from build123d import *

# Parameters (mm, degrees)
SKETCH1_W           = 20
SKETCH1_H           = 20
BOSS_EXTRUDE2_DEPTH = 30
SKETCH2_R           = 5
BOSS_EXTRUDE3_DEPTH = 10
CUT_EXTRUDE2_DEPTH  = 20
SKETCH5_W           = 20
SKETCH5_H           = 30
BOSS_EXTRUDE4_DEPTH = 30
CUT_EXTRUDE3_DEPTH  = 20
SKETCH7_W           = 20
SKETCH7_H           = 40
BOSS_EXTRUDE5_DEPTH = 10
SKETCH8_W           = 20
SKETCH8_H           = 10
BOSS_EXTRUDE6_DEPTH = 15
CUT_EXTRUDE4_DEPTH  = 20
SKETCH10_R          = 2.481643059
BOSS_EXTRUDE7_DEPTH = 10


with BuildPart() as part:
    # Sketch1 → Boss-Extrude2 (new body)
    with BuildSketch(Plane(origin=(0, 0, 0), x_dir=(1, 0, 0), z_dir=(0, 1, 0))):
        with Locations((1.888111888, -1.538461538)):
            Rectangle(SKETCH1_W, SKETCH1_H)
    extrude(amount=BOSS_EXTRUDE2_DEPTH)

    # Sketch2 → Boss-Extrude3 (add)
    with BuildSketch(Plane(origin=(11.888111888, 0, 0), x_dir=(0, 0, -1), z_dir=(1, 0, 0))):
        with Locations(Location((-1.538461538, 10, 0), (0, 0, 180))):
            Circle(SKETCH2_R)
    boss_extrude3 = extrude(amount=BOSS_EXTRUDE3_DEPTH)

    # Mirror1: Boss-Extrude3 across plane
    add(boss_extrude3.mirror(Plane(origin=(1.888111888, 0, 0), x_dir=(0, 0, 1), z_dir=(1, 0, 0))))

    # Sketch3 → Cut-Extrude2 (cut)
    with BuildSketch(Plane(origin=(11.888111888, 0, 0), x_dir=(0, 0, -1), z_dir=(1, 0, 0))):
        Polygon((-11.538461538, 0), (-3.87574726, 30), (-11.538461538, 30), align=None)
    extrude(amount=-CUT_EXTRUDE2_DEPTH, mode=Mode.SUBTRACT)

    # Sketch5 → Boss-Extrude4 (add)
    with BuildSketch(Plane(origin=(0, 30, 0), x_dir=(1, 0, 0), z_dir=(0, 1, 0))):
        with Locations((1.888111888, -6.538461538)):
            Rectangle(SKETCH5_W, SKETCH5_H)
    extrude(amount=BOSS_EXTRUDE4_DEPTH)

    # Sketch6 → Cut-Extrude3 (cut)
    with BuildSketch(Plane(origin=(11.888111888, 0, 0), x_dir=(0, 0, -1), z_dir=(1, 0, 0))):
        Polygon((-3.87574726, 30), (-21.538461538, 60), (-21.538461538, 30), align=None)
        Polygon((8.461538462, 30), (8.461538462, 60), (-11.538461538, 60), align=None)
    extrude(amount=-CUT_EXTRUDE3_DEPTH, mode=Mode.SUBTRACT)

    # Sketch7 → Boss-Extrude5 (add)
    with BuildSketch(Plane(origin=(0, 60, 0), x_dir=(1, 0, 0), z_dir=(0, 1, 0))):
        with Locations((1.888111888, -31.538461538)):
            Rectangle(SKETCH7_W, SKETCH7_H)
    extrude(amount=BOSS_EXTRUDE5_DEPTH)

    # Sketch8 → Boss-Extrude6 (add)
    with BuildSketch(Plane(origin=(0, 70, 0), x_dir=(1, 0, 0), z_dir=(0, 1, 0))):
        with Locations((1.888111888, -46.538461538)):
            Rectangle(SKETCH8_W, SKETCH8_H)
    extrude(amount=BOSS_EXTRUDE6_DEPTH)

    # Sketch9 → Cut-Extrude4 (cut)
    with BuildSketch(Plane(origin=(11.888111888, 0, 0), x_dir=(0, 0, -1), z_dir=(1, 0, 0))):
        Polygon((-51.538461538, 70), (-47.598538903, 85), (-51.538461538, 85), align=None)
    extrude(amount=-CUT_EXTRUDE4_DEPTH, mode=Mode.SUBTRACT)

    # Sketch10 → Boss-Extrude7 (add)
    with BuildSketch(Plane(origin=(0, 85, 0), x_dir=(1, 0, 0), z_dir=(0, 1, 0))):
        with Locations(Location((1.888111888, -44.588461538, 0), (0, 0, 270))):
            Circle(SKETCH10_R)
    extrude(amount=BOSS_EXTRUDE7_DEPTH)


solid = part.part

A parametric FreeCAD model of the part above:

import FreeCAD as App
import Part
import Sketcher


def add_polygon(sketch, points):
    """Adds a closed chain of lines whose ends are joined by coincident constraints."""
    first, n = sketch.GeometryCount, len(points)
    for a, b in zip(points, points[1:] + points[:1]):
        sketch.addGeometry(Part.LineSegment(App.Vector(*a, 0), App.Vector(*b, 0)), False)
    for i in range(n):
        sketch.addConstraint(Sketcher.Constraint("Coincident", first + i, 2, first + (i + 1) % n, 1))

doc = App.newDocument("Part")
body = doc.addObject("PartDesign::Body", "Body")

# Sketch on XZ plane
sketch1 = body.newObject("Sketcher::SketchObject", "Sketch")
sketch1.AttachmentSupport = (doc.getObject("XZ_Plane"), [""])
sketch1.MapMode = "FlatFace"
add_polygon(sketch1, [(-8, -8), (-8, 12), (12, 12), (12, -8)])  # lines 0-3
sketch1.addConstraint(Sketcher.Constraint("Vertical", 0))
sketch1.addConstraint(Sketcher.Constraint("Horizontal", 1))
sketch1.addConstraint(Sketcher.Constraint("Vertical", 2))
sketch1.addConstraint(Sketcher.Constraint("Horizontal", 3))
sketch1.addConstraint(Sketcher.Constraint("Equal", 3, 0))
sketch1.addConstraint(Sketcher.Constraint("DistanceX", 1, 1, 1, 2, 20.0))
sketch1.addConstraint(Sketcher.Constraint("DistanceX", 0, 2, -1, 1, 8.111888))
sketch1.addConstraint(Sketcher.Constraint("DistanceY", -1, 1, 0, 2, 11.538462))
pad1 = body.newObject("PartDesign::Pad", "Pad")
pad1.Profile = sketch1
pad1.Length = 30
pad1.Reversed = True

# Sketch on YZ plane
sketch2 = body.newObject("Sketcher::SketchObject", "Sketch001")
sketch2.AttachmentSupport = (doc.getObject("YZ_Plane"), [""])
sketch2.MapMode = "FlatFace"
sketch2.AttachmentOffset = App.Placement(App.Vector(0, 0, 11.888112), App.Rotation())
sketch2.addGeometry(Part.Circle(App.Vector(10, 2, 0), App.Vector(0, 0, 1), 5), False)
sketch2.addConstraint(Sketcher.Constraint("Diameter", 0, 10.0))
sketch2.addConstraint(Sketcher.Constraint("DistanceX", -1, 1, 0, 3, 10.0))
sketch2.addConstraint(Sketcher.Constraint("DistanceY", -1, 1, 0, 3, 1.538462))
pad2 = body.newObject("PartDesign::Pad", "Pad001")
pad2.Profile = sketch2
pad2.Length = 10
doc.recompute()

datumplane = body.newObject("PartDesign::Plane", "DatumPlane")
datumplane.AttachmentSupport = (doc.getObject("YZ_Plane"), [""])
datumplane.MapMode = "FlatFace"
datumplane.AttachmentOffset = App.Placement(App.Vector(0, 0, 1.888112), App.Rotation())
mirrored = body.newObject("PartDesign::Mirrored", "Mirrored")
mirrored.Originals = [pad2]
mirrored.MirrorPlane = (datumplane, [""])
body.Tip = mirrored

# Sketch on YZ plane
sketch3 = body.newObject("Sketcher::SketchObject", "Sketch002")
sketch3.AttachmentSupport = (doc.getObject("YZ_Plane"), [""])
sketch3.MapMode = "FlatFace"
sketch3.AttachmentOffset = App.Placement(App.Vector(0, 0, 11.888112), App.Rotation())
add_polygon(sketch3, [(0, 12), (30, 4), (30, 12)])  # lines 0-2
sketch3.addConstraint(Sketcher.Constraint("Vertical", 1))
sketch3.addConstraint(Sketcher.Constraint("Horizontal", 2))
sketch3.addConstraint(Sketcher.Constraint("PointOnObject", 2, 2, -2))
sketch3.addConstraint(Sketcher.Constraint("DistanceX", 2, 2, 2, 1, 30.0))
sketch3.addConstraint(Sketcher.Constraint("Distance", 0, 30.963159))
sketch3.addConstraint(Sketcher.Constraint("DistanceY", -1, 1, 1, 2, 11.538462))
pocket1 = body.newObject("PartDesign::Pocket", "Pocket")
pocket1.Profile = sketch3
pocket1.Length = 20

# Sketch on XZ plane
sketch4 = body.newObject("Sketcher::SketchObject", "Sketch003")
sketch4.AttachmentSupport = (doc.getObject("XZ_Plane"), [""])
sketch4.MapMode = "FlatFace"
sketch4.AttachmentOffset = App.Placement(App.Vector(0, 0, -30), App.Rotation())
add_polygon(sketch4, [(-8, -8), (-8, 22), (12, 22), (12, -8)])  # lines 0-3
sketch4.addConstraint(Sketcher.Constraint("Vertical", 0))
sketch4.addConstraint(Sketcher.Constraint("Horizontal", 1))
sketch4.addConstraint(Sketcher.Constraint("Vertical", 2))
sketch4.addConstraint(Sketcher.Constraint("Horizontal", 3))
sketch4.addConstraint(Sketcher.Constraint("DistanceX", 1, 1, 1, 2, 20.0))
sketch4.addConstraint(Sketcher.Constraint("DistanceY", 0, 1, 0, 2, 30.0))
sketch4.addConstraint(Sketcher.Constraint("DistanceX", 0, 2, -1, 1, 8.111888))
sketch4.addConstraint(Sketcher.Constraint("DistanceY", -1, 1, 0, 2, 21.538462))
pad3 = body.newObject("PartDesign::Pad", "Pad002")
pad3.Profile = sketch4
pad3.Length = 30
pad3.Reversed = True

# Sketch on YZ plane
sketch5 = body.newObject("Sketcher::SketchObject", "Sketch004")
sketch5.AttachmentSupport = (doc.getObject("YZ_Plane"), [""])
sketch5.MapMode = "FlatFace"
sketch5.AttachmentOffset = App.Placement(App.Vector(0, 0, 11.888112), App.Rotation())
add_polygon(sketch5, [(30, 4), (60, 22), (30, 22)])  # lines 0-2
add_polygon(sketch5, [(30, -8), (60, -8), (60, 12)])  # lines 3-5
sketch5.addConstraint(Sketcher.Constraint("Horizontal", 1))
sketch5.addConstraint(Sketcher.Constraint("Vertical", 2))
sketch5.addConstraint(Sketcher.Constraint("Horizontal", 3))
sketch5.addConstraint(Sketcher.Constraint("Vertical", 4))
sketch5.addConstraint(Sketcher.Constraint("Vertical", 0, 2, 3, 2))
sketch5.addConstraint(Sketcher.Constraint("Vertical", 2, 2, 5, 2))
sketch5.addConstraint(Sketcher.Constraint("DistanceX", 1, 2, 1, 1, 30.0))
sketch5.addConstraint(Sketcher.Constraint("DistanceY", 4, 1, 4, 2, 20.0))
sketch5.addConstraint(Sketcher.Constraint("DistanceX", -1, 1, 0, 2, 60.0))
sketch5.addConstraint(Sketcher.Constraint("DistanceY", 3, 2, 0, 2, 30.0))
sketch5.addConstraint(Sketcher.Constraint("Distance", 0, 34.813381))
sketch5.addConstraint(Sketcher.Constraint("DistanceY", -1, 1, 0, 2, 21.538462))
pocket2 = body.newObject("PartDesign::Pocket", "Pocket001")
pocket2.Profile = sketch5
pocket2.Length = 20

# Sketch on XZ plane
sketch6 = body.newObject("Sketcher::SketchObject", "Sketch005")
sketch6.AttachmentSupport = (doc.getObject("XZ_Plane"), [""])
sketch6.MapMode = "FlatFace"
sketch6.AttachmentOffset = App.Placement(App.Vector(0, 0, -60), App.Rotation())
add_polygon(sketch6, [(-8, 12), (-8, 52), (12, 52), (12, 12)])  # lines 0-3
sketch6.addConstraint(Sketcher.Constraint("Vertical", 0))
sketch6.addConstraint(Sketcher.Constraint("Horizontal", 1))
sketch6.addConstraint(Sketcher.Constraint("Vertical", 2))
sketch6.addConstraint(Sketcher.Constraint("Horizontal", 3))
sketch6.addConstraint(Sketcher.Constraint("DistanceX", 1, 1, 1, 2, 20.0))
sketch6.addConstraint(Sketcher.Constraint("DistanceY", 0, 1, 0, 2, 40.0))
sketch6.addConstraint(Sketcher.Constraint("DistanceX", 0, 2, -1, 1, 8.111888))
sketch6.addConstraint(Sketcher.Constraint("DistanceY", -1, 1, 0, 2, 51.538462))
pad4 = body.newObject("PartDesign::Pad", "Pad003")
pad4.Profile = sketch6
pad4.Length = 10
pad4.Reversed = True

# Sketch on XZ plane
sketch7 = body.newObject("Sketcher::SketchObject", "Sketch006")
sketch7.AttachmentSupport = (doc.getObject("XZ_Plane"), [""])
sketch7.MapMode = "FlatFace"
sketch7.AttachmentOffset = App.Placement(App.Vector(0, 0, -70), App.Rotation())
add_polygon(sketch7, [(-8, 42), (-8, 52), (12, 52), (12, 42)])  # lines 0-3
sketch7.addConstraint(Sketcher.Constraint("Vertical", 0))
sketch7.addConstraint(Sketcher.Constraint("Horizontal", 1))
sketch7.addConstraint(Sketcher.Constraint("Vertical", 2))
sketch7.addConstraint(Sketcher.Constraint("Horizontal", 3))
sketch7.addConstraint(Sketcher.Constraint("DistanceX", 1, 1, 1, 2, 20.0))
sketch7.addConstraint(Sketcher.Constraint("DistanceY", 0, 1, 0, 2, 10.0))
sketch7.addConstraint(Sketcher.Constraint("DistanceX", 0, 2, -1, 1, 8.111888))
sketch7.addConstraint(Sketcher.Constraint("DistanceY", -1, 1, 0, 2, 51.538462))
pad5 = body.newObject("PartDesign::Pad", "Pad004")
pad5.Profile = sketch7
pad5.Length = 15
pad5.Reversed = True

# Sketch on YZ plane
sketch8 = body.newObject("Sketcher::SketchObject", "Sketch007")
sketch8.AttachmentSupport = (doc.getObject("YZ_Plane"), [""])
sketch8.MapMode = "FlatFace"
sketch8.AttachmentOffset = App.Placement(App.Vector(0, 0, 11.888112), App.Rotation())
add_polygon(sketch8, [(70, 51.5), (85, 47.6), (85, 51.5)])  # lines 0-2
sketch8.addConstraint(Sketcher.Constraint("Vertical", 1))
sketch8.addConstraint(Sketcher.Constraint("Horizontal", 2))
sketch8.addConstraint(Sketcher.Constraint("DistanceX", 2, 2, 2, 1, 15.0))
sketch8.addConstraint(Sketcher.Constraint("DistanceX", -1, 1, 0, 2, 85.0))
sketch8.addConstraint(Sketcher.Constraint("DistanceY", 1, 1, 1, 2, 3.939923))
sketch8.addConstraint(Sketcher.Constraint("DistanceY", -1, 1, 0, 2, 47.598539))
pocket3 = body.newObject("PartDesign::Pocket", "Pocket002")
pocket3.Profile = sketch8
pocket3.Length = 20

# Sketch on XZ plane
sketch9 = body.newObject("Sketcher::SketchObject", "Sketch008")
sketch9.AttachmentSupport = (doc.getObject("XZ_Plane"), [""])
sketch9.MapMode = "FlatFace"
sketch9.AttachmentOffset = App.Placement(App.Vector(0, 0, -85), App.Rotation())
sketch9.addGeometry(Part.Circle(App.Vector(1.9, 44.6, 0), App.Vector(0, 0, 1), 2.5), False)
sketch9.addConstraint(Sketcher.Constraint("Diameter", 0, 4.963286))
sketch9.addConstraint(Sketcher.Constraint("DistanceX", -1, 1, 0, 3, 1.888112))
sketch9.addConstraint(Sketcher.Constraint("DistanceY", -1, 1, 0, 3, 44.588462))
pad6 = body.newObject("PartDesign::Pad", "Pad005")
pad6.Profile = sketch9
pad6.Length = 10
pad6.Reversed = True

doc.recompute()
